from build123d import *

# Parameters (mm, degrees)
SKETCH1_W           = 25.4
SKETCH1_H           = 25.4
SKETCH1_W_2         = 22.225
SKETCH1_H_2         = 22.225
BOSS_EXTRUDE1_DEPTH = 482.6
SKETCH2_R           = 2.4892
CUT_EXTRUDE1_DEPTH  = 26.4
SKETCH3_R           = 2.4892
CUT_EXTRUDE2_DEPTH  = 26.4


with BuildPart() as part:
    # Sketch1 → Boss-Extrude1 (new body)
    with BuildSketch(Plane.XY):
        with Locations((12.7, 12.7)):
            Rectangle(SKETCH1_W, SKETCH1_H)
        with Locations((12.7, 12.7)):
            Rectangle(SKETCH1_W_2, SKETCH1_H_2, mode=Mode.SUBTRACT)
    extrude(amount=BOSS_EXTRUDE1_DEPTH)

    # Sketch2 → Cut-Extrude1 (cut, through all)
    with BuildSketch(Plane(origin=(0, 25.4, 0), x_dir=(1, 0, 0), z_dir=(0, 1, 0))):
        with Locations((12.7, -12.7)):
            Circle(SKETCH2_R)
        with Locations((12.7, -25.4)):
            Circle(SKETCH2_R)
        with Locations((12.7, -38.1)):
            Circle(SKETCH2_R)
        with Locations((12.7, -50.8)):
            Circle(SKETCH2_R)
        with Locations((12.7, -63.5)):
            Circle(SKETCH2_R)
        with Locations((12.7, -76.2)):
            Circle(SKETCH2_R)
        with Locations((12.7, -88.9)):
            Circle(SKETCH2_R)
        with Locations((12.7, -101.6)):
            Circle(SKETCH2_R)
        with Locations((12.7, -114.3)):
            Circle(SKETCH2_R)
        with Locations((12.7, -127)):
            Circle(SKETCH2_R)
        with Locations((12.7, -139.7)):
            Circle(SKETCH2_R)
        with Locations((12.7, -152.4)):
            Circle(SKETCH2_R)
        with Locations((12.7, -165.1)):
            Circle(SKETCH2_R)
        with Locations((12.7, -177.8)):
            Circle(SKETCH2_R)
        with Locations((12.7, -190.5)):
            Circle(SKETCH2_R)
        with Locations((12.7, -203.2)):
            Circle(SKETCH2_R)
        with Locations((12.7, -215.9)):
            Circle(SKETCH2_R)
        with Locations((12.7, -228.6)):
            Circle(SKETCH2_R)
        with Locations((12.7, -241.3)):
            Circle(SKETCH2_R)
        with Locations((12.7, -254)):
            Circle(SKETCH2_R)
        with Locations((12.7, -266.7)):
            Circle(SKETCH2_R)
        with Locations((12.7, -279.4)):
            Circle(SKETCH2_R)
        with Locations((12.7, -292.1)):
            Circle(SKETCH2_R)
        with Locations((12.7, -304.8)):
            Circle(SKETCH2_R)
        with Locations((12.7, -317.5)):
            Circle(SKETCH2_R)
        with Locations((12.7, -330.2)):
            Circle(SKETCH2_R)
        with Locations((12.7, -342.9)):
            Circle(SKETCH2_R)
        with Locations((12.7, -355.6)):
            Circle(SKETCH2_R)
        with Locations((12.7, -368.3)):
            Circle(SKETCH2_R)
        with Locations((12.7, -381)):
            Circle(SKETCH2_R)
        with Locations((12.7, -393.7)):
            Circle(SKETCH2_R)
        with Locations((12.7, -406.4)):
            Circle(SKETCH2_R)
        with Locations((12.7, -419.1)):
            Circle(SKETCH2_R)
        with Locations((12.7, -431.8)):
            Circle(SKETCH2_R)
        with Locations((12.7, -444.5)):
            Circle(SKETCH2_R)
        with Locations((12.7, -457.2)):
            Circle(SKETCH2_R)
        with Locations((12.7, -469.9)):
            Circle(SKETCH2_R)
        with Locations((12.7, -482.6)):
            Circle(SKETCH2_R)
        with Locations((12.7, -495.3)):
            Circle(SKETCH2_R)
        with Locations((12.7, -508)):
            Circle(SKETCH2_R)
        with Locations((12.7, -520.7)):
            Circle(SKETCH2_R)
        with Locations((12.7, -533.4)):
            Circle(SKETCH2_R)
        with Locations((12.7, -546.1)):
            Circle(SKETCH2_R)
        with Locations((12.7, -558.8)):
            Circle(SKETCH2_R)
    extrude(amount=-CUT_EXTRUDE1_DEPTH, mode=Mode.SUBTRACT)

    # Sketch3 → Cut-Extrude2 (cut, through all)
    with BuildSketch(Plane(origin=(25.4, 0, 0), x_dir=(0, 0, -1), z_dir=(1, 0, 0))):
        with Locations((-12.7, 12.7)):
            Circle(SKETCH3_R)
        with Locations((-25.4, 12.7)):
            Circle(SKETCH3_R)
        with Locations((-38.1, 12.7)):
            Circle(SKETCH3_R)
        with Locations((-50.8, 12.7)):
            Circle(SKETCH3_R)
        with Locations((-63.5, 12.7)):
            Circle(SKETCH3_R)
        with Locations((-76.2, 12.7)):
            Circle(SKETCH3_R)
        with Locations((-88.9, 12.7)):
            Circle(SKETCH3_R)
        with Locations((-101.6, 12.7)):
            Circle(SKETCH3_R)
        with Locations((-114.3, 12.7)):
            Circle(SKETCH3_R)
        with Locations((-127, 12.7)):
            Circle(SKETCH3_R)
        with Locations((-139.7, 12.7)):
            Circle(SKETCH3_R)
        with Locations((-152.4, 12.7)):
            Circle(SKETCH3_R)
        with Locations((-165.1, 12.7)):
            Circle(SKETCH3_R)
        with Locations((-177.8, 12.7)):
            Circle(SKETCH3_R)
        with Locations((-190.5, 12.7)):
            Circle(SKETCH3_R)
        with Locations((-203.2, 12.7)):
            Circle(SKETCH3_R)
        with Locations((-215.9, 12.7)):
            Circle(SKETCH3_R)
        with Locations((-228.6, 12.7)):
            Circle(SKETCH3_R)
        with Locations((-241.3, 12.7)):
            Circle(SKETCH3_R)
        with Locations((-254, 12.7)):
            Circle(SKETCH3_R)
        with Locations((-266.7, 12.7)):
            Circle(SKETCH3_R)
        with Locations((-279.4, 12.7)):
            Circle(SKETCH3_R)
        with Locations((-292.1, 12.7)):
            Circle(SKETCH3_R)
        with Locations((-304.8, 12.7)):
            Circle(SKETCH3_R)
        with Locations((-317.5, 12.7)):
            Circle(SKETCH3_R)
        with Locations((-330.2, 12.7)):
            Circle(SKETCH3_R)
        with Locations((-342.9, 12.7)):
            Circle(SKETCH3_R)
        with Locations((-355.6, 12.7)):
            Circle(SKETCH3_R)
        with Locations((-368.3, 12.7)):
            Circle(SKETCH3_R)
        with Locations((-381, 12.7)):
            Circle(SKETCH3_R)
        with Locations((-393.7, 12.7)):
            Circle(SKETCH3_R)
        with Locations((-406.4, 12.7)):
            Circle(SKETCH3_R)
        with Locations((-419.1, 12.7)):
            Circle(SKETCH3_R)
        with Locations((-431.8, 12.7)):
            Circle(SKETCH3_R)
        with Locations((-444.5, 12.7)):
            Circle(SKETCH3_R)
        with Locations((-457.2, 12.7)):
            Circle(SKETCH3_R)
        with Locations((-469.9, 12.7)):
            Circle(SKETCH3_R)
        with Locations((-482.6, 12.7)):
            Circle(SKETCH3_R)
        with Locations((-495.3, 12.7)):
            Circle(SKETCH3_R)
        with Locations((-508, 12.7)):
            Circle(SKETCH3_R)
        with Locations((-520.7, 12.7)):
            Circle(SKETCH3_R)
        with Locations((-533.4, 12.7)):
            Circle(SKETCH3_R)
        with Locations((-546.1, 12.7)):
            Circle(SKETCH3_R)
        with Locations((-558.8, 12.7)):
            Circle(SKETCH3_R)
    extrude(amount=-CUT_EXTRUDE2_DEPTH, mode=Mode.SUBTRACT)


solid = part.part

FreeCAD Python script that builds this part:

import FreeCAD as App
import Part
import Sketcher
from FreeCAD import Vector
Q = App.Units.Quantity

doc = App.newDocument("Part")
params = doc.addObject("Spreadsheet::Sheet", "Params")
for row, (alias, value) in enumerate([
    ("sketch1_width", "1 in"),
    ("sketch1_width2", "0.875 in"),
    ("pad1_length", "19 in"),
    ("sketch2_diameter", "0.196 in"),
    ("sketch3_diameter", "0.196 in"),
], start=1):
    params.set(f"A{row}", alias)
    params.set(f"B{row}", "=" + value)
    params.setAlias(f"B{row}", alias)

body = doc.addObject("PartDesign::Body", "Body")

# Sketch on XY plane
sketch1 = body.newObject("Sketcher::SketchObject", "Sketch")
sketch1.AttachmentSupport = (doc.getObject("XY_Plane"), [""])
sketch1.MapMode = "FlatFace"
sketch1.addGeometry([
    Part.LineSegment(Vector(0, 25.4, 0), Vector(0, 0, 0)),  # 0
    Part.LineSegment(Vector(0, 0, 0), Vector(25.4, 0, 0)),  # 1
    Part.LineSegment(Vector(25.4, 0, 0), Vector(25.4, 25.4, 0)),  # 2
    Part.LineSegment(Vector(25.4, 25.4, 0), Vector(0, 25.4, 0)),  # 3
    Part.LineSegment(Vector(23.8125, 1.5875, 0), Vector(1.5875, 1.5875, 0)),  # 4
    Part.LineSegment(Vector(1.5875, 1.5875, 0), Vector(1.5875, 23.8125, 0)),  # 5
    Part.LineSegment(Vector(1.5875, 23.8125, 0), Vector(23.8125, 23.8125, 0)),  # 6
    Part.LineSegment(Vector(23.8125, 23.8125, 0), Vector(23.8125, 1.5875, 0)),  # 7
], False)
sketch1.addConstraint([
    Sketcher.Constraint("Coincident", 0, 2, 1, 1),
    Sketcher.Constraint("Coincident", 1, 2, 2, 1),
    Sketcher.Constraint("Coincident", 2, 2, 3, 1),
    Sketcher.Constraint("Coincident", 3, 2, 0, 1),
    Sketcher.Constraint("Coincident", 4, 2, 5, 1),
    Sketcher.Constraint("Coincident", 5, 2, 6, 1),
    Sketcher.Constraint("Coincident", 6, 2, 7, 1),
    Sketcher.Constraint("Coincident", 7, 2, 4, 1),
    Sketcher.Constraint("Vertical", 0),
    Sketcher.Constraint("Horizontal", 1),
    Sketcher.Constraint("Vertical", 2),
    Sketcher.Constraint("Horizontal", 3),
    Sketcher.Constraint("Horizontal", 4),
    Sketcher.Constraint("Vertical", 5),
    Sketcher.Constraint("Horizontal", 6),
    Sketcher.Constraint("Vertical", 7),
    Sketcher.Constraint("Coincident", 0, 2, -1, 1),
    Sketcher.Constraint("Equal", 3, 0),
    Sketcher.Constraint("Equal", 6, 5),
    Sketcher.Constraint("DistanceX", 1, 1, 1, 2, Q("1 in")),
    Sketcher.Constraint("DistanceX", 4, 2, 4, 1, Q("0.875 in")),
    Sketcher.Constraint("DistanceX", -1, 1, 4, 2, Q("0.0625 in")),
    Sketcher.Constraint("DistanceY", -1, 1, 4, 2, Q("0.0625 in")),
])
sketch1.setExpression("Constraints[19]", "Params.sketch1_width")
sketch1.setExpression("Constraints[20]", "Params.sketch1_width2")
pad1 = body.newObject("PartDesign::Pad", "Pad")
pad1.Profile = sketch1
pad1.setExpression("Length", "Params.pad1_length")

# Sketch on XZ plane
sketch2 = body.newObject("Sketcher::SketchObject", "Sketch001")
sketch2.AttachmentSupport = (doc.getObject("XZ_Plane"), [""])
sketch2.MapMode = "FlatFace"
sketch2.AttachmentOffset = App.Placement(Vector(0, 0, -1 * 25.4), App.Rotation())
sketch2.addGeometry([
    Part.Circle(Vector(12.7, 12.7, 0), Vector(0, 0, 1), 2.4892),  # 0
    Part.Circle(Vector(12.7, 25.4, 0), Vector(0, 0, 1), 2.4892),  # 1
    Part.Circle(Vector(12.7, 38.1, 0), Vector(0, 0, 1), 2.4892),  # 2
    Part.Circle(Vector(12.7, 50.8, 0), Vector(0, 0, 1), 2.4892),  # 3
    Part.Circle(Vector(12.7, 63.5, 0), Vector(0, 0, 1), 2.4892),  # 4
    Part.Circle(Vector(12.7, 76.2, 0), Vector(0, 0, 1), 2.4892),  # 5
    Part.Circle(Vector(12.7, 88.9, 0), Vector(0, 0, 1), 2.4892),  # 6
    Part.Circle(Vector(12.7, 101.6, 0), Vector(0, 0, 1), 2.4892),  # 7
    Part.Circle(Vector(12.7, 114.3, 0), Vector(0, 0, 1), 2.4892),  # 8
    Part.Circle(Vector(12.7, 127, 0), Vector(0, 0, 1), 2.4892),  # 9
    Part.Circle(Vector(12.7, 139.7, 0), Vector(0, 0, 1), 2.4892),  # 10
    Part.Circle(Vector(12.7, 152.4, 0), Vector(0, 0, 1), 2.4892),  # 11
    Part.Circle(Vector(12.7, 165.1, 0), Vector(0, 0, 1), 2.4892),  # 12
    Part.Circle(Vector(12.7, 177.8, 0), Vector(0, 0, 1), 2.4892),  # 13
    Part.Circle(Vector(12.7, 190.5, 0), Vector(0, 0, 1), 2.4892),  # 14
    Part.Circle(Vector(12.7, 203.2, 0), Vector(0, 0, 1), 2.4892),  # 15
    Part.Circle(Vector(12.7, 215.9, 0), Vector(0, 0, 1), 2.4892),  # 16
    Part.Circle(Vector(12.7, 228.6, 0), Vector(0, 0, 1), 2.4892),  # 17
    Part.Circle(Vector(12.7, 241.3, 0), Vector(0, 0, 1), 2.4892),  # 18
    Part.Circle(Vector(12.7, 254, 0), Vector(0, 0, 1), 2.4892),  # 19
    Part.Circle(Vector(12.7, 266.7, 0), Vector(0, 0, 1), 2.4892),  # 20
    Part.Circle(Vector(12.7, 279.4, 0), Vector(0, 0, 1), 2.4892),  # 21
    Part.Circle(Vector(12.7, 292.1, 0), Vector(0, 0, 1), 2.4892),  # 22
    Part.Circle(Vector(12.7, 304.8, 0), Vector(0, 0, 1), 2.4892),  # 23
    Part.Circle(Vector(12.7, 317.5, 0), Vector(0, 0, 1), 2.4892),  # 24
    Part.Circle(Vector(12.7, 330.2, 0), Vector(0, 0, 1), 2.4892),  # 25
    Part.Circle(Vector(12.7, 342.9, 0), Vector(0, 0, 1), 2.4892),  # 26
    Part.Circle(Vector(12.7, 355.6, 0), Vector(0, 0, 1), 2.4892),  # 27
    Part.Circle(Vector(12.7, 368.3, 0), Vector(0, 0, 1), 2.4892),  # 28
    Part.Circle(Vector(12.7, 381, 0), Vector(0, 0, 1), 2.4892),  # 29
    Part.Circle(Vector(12.7, 393.7, 0), Vector(0, 0, 1), 2.4892),  # 30
    Part.Circle(Vector(12.7, 406.4, 0), Vector(0, 0, 1), 2.4892),  # 31
    Part.Circle(Vector(12.7, 419.1, 0), Vector(0, 0, 1), 2.4892),  # 32
    Part.Circle(Vector(12.7, 431.8, 0), Vector(0, 0, 1), 2.4892),  # 33
    Part.Circle(Vector(12.7, 444.5, 0), Vector(0, 0, 1), 2.4892),  # 34
    Part.Circle(Vector(12.7, 457.2, 0), Vector(0, 0, 1), 2.4892),  # 35
    Part.Circle(Vector(12.7, 469.9, 0), Vector(0, 0, 1), 2.4892),  # 36
    Part.Circle(Vector(12.7, 482.6, 0), Vector(0, 0, 1), 2.4892),  # 37
    Part.Circle(Vector(12.7, 495.3, 0), Vector(0, 0, 1), 2.4892),  # 38
    Part.Circle(Vector(12.7, 508, 0), Vector(0, 0, 1), 2.4892),  # 39
    Part.Circle(Vector(12.7, 520.7, 0), Vector(0, 0, 1), 2.4892),  # 40
    Part.Circle(Vector(12.7, 533.4, 0), Vector(0, 0, 1), 2.4892),  # 41
    Part.Circle(Vector(12.7, 546.1, 0), Vector(0, 0, 1), 2.4892),  # 42
    Part.Circle(Vector(12.7, 558.8, 0), Vector(0, 0, 1), 2.4892),  # 43
], False)
sketch2.addConstraint([
    Sketcher.Constraint("Equal", 0, 1),
    Sketcher.Constraint("Equal", 1, 2),
    Sketcher.Constraint("Equal", 2, 3),
    Sketcher.Constraint("Equal", 3, 4),
    Sketcher.Constraint("Equal", 4, 5),
    Sketcher.Constraint("Equal", 5, 6),
    Sketcher.Constraint("Equal", 6, 7),
    Sketcher.Constraint("Equal", 7, 8),
    Sketcher.Constraint("Equal", 8, 9),
    Sketcher.Constraint("Equal", 9, 10),
    Sketcher.Constraint("Equal", 10, 11),
    Sketcher.Constraint("Equal", 11, 12),
    Sketcher.Constraint("Equal", 12, 13),
    Sketcher.Constraint("Equal", 13, 14),
    Sketcher.Constraint("Equal", 14, 15),
    Sketcher.Constraint("Equal", 15, 16),
    Sketcher.Constraint("Equal", 16, 17),
    Sketcher.Constraint("Equal", 17, 18),
    Sketcher.Constraint("Equal", 18, 19),
    Sketcher.Constraint("Equal", 19, 20),
    Sketcher.Constraint("Equal", 20, 21),
    Sketcher.Constraint("Equal", 21, 22),
    Sketcher.Constraint("Equal", 22, 23),
    Sketcher.Constraint("Equal", 23, 24),
    Sketcher.Constraint("Equal", 24, 25),
    Sketcher.Constraint("Equal", 25, 26),
    Sketcher.Constraint("Equal", 26, 27),
    Sketcher.Constraint("Equal", 27, 28),
    Sketcher.Constraint("Equal", 28, 29),
    Sketcher.Constraint("Equal", 29, 30),
    Sketcher.Constraint("Equal", 30, 31),
    Sketcher.Constraint("Equal", 31, 32),
    Sketcher.Constraint("Equal", 32, 33),
    Sketcher.Constraint("Equal", 33, 34),
    Sketcher.Constraint("Equal", 34, 35),
    Sketcher.Constraint("Equal", 35, 36),
    Sketcher.Constraint("Equal", 36, 37),
    Sketcher.Constraint("Equal", 37, 38),
    Sketcher.Constraint("Equal", 38, 39),
    Sketcher.Constraint("Equal", 39, 40),
    Sketcher.Constraint("Equal", 40, 41),
    Sketcher.Constraint("Equal", 41, 42),
    Sketcher.Constraint("Equal", 42, 43),
    Sketcher.Constraint("Vertical", 0, 3, 1, 3),
    Sketcher.Constraint("Vertical", 1, 3, 2, 3),
    Sketcher.Constraint("Vertical", 2, 3, 3, 3),
    Sketcher.Constraint("Vertical", 3, 3, 4, 3),
    Sketcher.Constraint("Vertical", 4, 3, 5, 3),
    Sketcher.Constraint("Vertical", 5, 3, 6, 3),
    Sketcher.Constraint("Vertical", 6, 3, 7, 3),
    Sketcher.Constraint("Vertical", 7, 3, 8, 3),
    Sketcher.Constraint("Vertical", 8, 3, 9, 3),
    Sketcher.Constraint("Vertical", 9, 3, 10, 3),
    Sketcher.Constraint("Vertical", 10, 3, 11, 3),
    Sketcher.Constraint("Vertical", 11, 3, 12, 3),
    Sketcher.Constraint("Vertical", 12, 3, 13, 3),
    Sketcher.Constraint("Vertical", 13, 3, 14, 3),
    Sketcher.Constraint("Vertical", 14, 3, 15, 3),
    Sketcher.Constraint("Vertical", 15, 3, 16, 3),
    Sketcher.Constraint("Vertical", 16, 3, 17, 3),
    Sketcher.Constraint("Vertical", 17, 3, 18, 3),
    Sketcher.Constraint("Vertical", 18, 3, 19, 3),
    Sketcher.Constraint("Vertical", 19, 3, 20, 3),
    Sketcher.Constraint("Vertical", 20, 3, 21, 3),
    Sketcher.Constraint("Vertical", 21, 3, 22, 3),
    Sketcher.Constraint("Vertical", 22, 3, 23, 3),
    Sketcher.Constraint("Vertical", 23, 3, 24, 3),
    Sketcher.Constraint("Vertical", 24, 3, 25, 3),
    Sketcher.Constraint("Vertical", 25, 3, 26, 3),
    Sketcher.Constraint("Vertical", 26, 3, 27, 3),
    Sketcher.Constraint("Vertical", 27, 3, 28, 3),
    Sketcher.Constraint("Vertical", 28, 3, 29, 3),
    Sketcher.Constraint("Vertical", 29, 3, 30, 3),
    Sketcher.Constraint("Vertical", 30, 3, 31, 3),
    Sketcher.Constraint("Vertical", 31, 3, 32, 3),
    Sketcher.Constraint("Vertical", 32, 3, 33, 3),
    Sketcher.Constraint("Vertical", 33, 3, 34, 3),
    Sketcher.Constraint("Vertical", 34, 3, 35, 3),
    Sketcher.Constraint("Vertical", 35, 3, 36, 3),
    Sketcher.Constraint("Vertical", 36, 3, 37, 3),
    Sketcher.Constraint("Vertical", 37, 3, 38, 3),
    Sketcher.Constraint("Vertical", 38, 3, 39, 3),
    Sketcher.Constraint("Vertical", 39, 3, 40, 3),
    Sketcher.Constraint("Vertical", 40, 3, 41, 3),
    Sketcher.Constraint("Vertical", 41, 3, 42, 3),
    Sketcher.Constraint("Vertical", 42, 3, 43, 3),
    Sketcher.Constraint("Diameter", 0, Q("0.196 in")),
    Sketcher.Constraint("DistanceY", -1, 1, 1, 3, Q("1 in")),
    Sketcher.Constraint("DistanceY", -1, 1, 3, 3, Q("2 in")),
    Sketcher.Constraint("DistanceY", -1, 1, 5, 3, Q("3 in")),
    Sketcher.Constraint("DistanceY", -1, 1, 7, 3, Q("4 in")),
    Sketcher.Constraint("DistanceY", -1, 1, 9, 3, Q("5 in")),
    Sketcher.Constraint("DistanceY", -1, 1, 11, 3, Q("6 in")),
    Sketcher.Constraint("DistanceY", -1, 1, 13, 3, Q("7 in")),
    Sketcher.Constraint("DistanceY", -1, 1, 15, 3, Q("8 in")),
    Sketcher.Constraint("DistanceY", -1, 1, 17, 3, Q("9 in")),
    Sketcher.Constraint("DistanceY", -1, 1, 19, 3, Q("10 in")),
    Sketcher.Constraint("DistanceY", -1, 1, 21, 3, Q("11 in")),
    Sketcher.Constraint("DistanceY", -1, 1, 23, 3, Q("12 in")),
    Sketcher.Constraint("DistanceY", -1, 1, 25, 3, Q("13 in")),
    Sketcher.Constraint("DistanceY", -1, 1, 27, 3, Q("14 in")),
    Sketcher.Constraint("DistanceY", -1, 1, 29, 3, Q("15 in")),
    Sketcher.Constraint("DistanceY", -1, 1, 31, 3, Q("16 in")),
    Sketcher.Constraint("DistanceY", -1, 1, 33, 3, Q("17 in")),
    Sketcher.Constraint("DistanceY", -1, 1, 35, 3, Q("18 in")),
    Sketcher.Constraint("DistanceY", -1, 1, 37, 3, Q("19 in")),
    Sketcher.Constraint("DistanceY", -1, 1, 39, 3, Q("20 in")),
    Sketcher.Constraint("DistanceY", -1, 1, 41, 3, Q("21 in")),
    Sketcher.Constraint("DistanceY", -1, 1, 43, 3, Q("22 in")),
    Sketcher.Constraint("DistanceY", 0, 3, 2, 3, Q("1 in")),
    Sketcher.Constraint("DistanceY", 2, 3, 4, 3, Q("1 in")),
    Sketcher.Constraint("DistanceY", 4, 3, 6, 3, Q("1 in")),
    Sketcher.Constraint("DistanceY", 6, 3, 8, 3, Q("1 in")),
    Sketcher.Constraint("DistanceY", 8, 3, 10, 3, Q("1 in")),
    Sketcher.Constraint("DistanceY", 10, 3, 12, 3, Q("1 in")),
    Sketcher.Constraint("DistanceY", 12, 3, 14, 3, Q("1 in")),
    Sketcher.Constraint("DistanceY", 14, 3, 16, 3, Q("1 in")),
    Sketcher.Constraint("DistanceY", 16, 3, 18, 3, Q("1 in")),
    Sketcher.Constraint("DistanceY", 18, 3, 20, 3, Q("1 in")),
    Sketcher.Constraint("DistanceY", 20, 3, 22, 3, Q("1 in")),
    Sketcher.Constraint("DistanceY", 22, 3, 24, 3, Q("1 in")),
    Sketcher.Constraint("DistanceY", 24, 3, 26, 3, Q("1 in")),
    Sketcher.Constraint("DistanceY", 26, 3, 28, 3, Q("1 in")),
    Sketcher.Constraint("DistanceY", 28, 3, 30, 3, Q("1 in")),
    Sketcher.Constraint("DistanceY", 30, 3, 32, 3, Q("1 in")),
    Sketcher.Constraint("DistanceY", 32, 3, 34, 3, Q("1 in")),
    Sketcher.Constraint("DistanceY", 34, 3, 36, 3, Q("1 in")),
    Sketcher.Constraint("DistanceY", 36, 3, 38, 3, Q("1 in")),
    Sketcher.Constraint("DistanceY", 38, 3, 40, 3, Q("1 in")),
    Sketcher.Constraint("DistanceY", 40, 3, 42, 3, Q("1 in")),
    Sketcher.Constraint("DistanceX", -1, 1, 0, 3, Q("0.5 in")),
    Sketcher.Constraint("DistanceY", -1, 1, 0, 3, Q("0.5 in")),
])
sketch2.setExpression("Constraints[86]", "Params.sketch2_diameter")
pocket1 = body.newObject("PartDesign::Pocket", "Pocket")
pocket1.Profile = sketch2
pocket1.Type = "ThroughAll"
pocket1.Reversed = True

# Sketch on YZ plane
sketch3 = body.newObject("Sketcher::SketchObject", "Sketch002")
sketch3.AttachmentSupport = (doc.getObject("YZ_Plane"), [""])
sketch3.MapMode = "FlatFace"
sketch3.AttachmentOffset = App.Placement(Vector(0, 0, 1 * 25.4), App.Rotation())
sketch3.addGeometry([
    Part.Circle(Vector(12.7, 12.7, 0), Vector(0, 0, 1), 2.4892),  # 0
    Part.Circle(Vector(12.7, 25.4, 0), Vector(0, 0, 1), 2.4892),  # 1
    Part.Circle(Vector(12.7, 38.1, 0), Vector(0, 0, 1), 2.4892),  # 2
    Part.Circle(Vector(12.7, 50.8, 0), Vector(0, 0, 1), 2.4892),  # 3
    Part.Circle(Vector(12.7, 63.5, 0), Vector(0, 0, 1), 2.4892),  # 4
    Part.Circle(Vector(12.7, 76.2, 0), Vector(0, 0, 1), 2.4892),  # 5
    Part.Circle(Vector(12.7, 88.9, 0), Vector(0, 0, 1), 2.4892),  # 6
    Part.Circle(Vector(12.7, 101.6, 0), Vector(0, 0, 1), 2.4892),  # 7
    Part.Circle(Vector(12.7, 114.3, 0), Vector(0, 0, 1), 2.4892),  # 8
    Part.Circle(Vector(12.7, 127, 0), Vector(0, 0, 1), 2.4892),  # 9
    Part.Circle(Vector(12.7, 139.7, 0), Vector(0, 0, 1), 2.4892),  # 10
    Part.Circle(Vector(12.7, 152.4, 0), Vector(0, 0, 1), 2.4892),  # 11
    Part.Circle(Vector(12.7, 165.1, 0), Vector(0, 0, 1), 2.4892),  # 12
    Part.Circle(Vector(12.7, 177.8, 0), Vector(0, 0, 1), 2.4892),  # 13
    Part.Circle(Vector(12.7, 190.5, 0), Vector(0, 0, 1), 2.4892),  # 14
    Part.Circle(Vector(12.7, 203.2, 0), Vector(0, 0, 1), 2.4892),  # 15
    Part.Circle(Vector(12.7, 215.9, 0), Vector(0, 0, 1), 2.4892),  # 16
    Part.Circle(Vector(12.7, 228.6, 0), Vector(0, 0, 1), 2.4892),  # 17
    Part.Circle(Vector(12.7, 241.3, 0), Vector(0, 0, 1), 2.4892),  # 18
    Part.Circle(Vector(12.7, 254, 0), Vector(0, 0, 1), 2.4892),  # 19
    Part.Circle(Vector(12.7, 266.7, 0), Vector(0, 0, 1), 2.4892),  # 20
    Part.Circle(Vector(12.7, 279.4, 0), Vector(0, 0, 1), 2.4892),  # 21
    Part.Circle(Vector(12.7, 292.1, 0), Vector(0, 0, 1), 2.4892),  # 22
    Part.Circle(Vector(12.7, 304.8, 0), Vector(0, 0, 1), 2.4892),  # 23
    Part.Circle(Vector(12.7, 317.5, 0), Vector(0, 0, 1), 2.4892),  # 24
    Part.Circle(Vector(12.7, 330.2, 0), Vector(0, 0, 1), 2.4892),  # 25
    Part.Circle(Vector(12.7, 342.9, 0), Vector(0, 0, 1), 2.4892),  # 26
    Part.Circle(Vector(12.7, 355.6, 0), Vector(0, 0, 1), 2.4892),  # 27
    Part.Circle(Vector(12.7, 368.3, 0), Vector(0, 0, 1), 2.4892),  # 28
    Part.Circle(Vector(12.7, 381, 0), Vector(0, 0, 1), 2.4892),  # 29
    Part.Circle(Vector(12.7, 393.7, 0), Vector(0, 0, 1), 2.4892),  # 30
    Part.Circle(Vector(12.7, 406.4, 0), Vector(0, 0, 1), 2.4892),  # 31
    Part.Circle(Vector(12.7, 419.1, 0), Vector(0, 0, 1), 2.4892),  # 32
    Part.Circle(Vector(12.7, 431.8, 0), Vector(0, 0, 1), 2.4892),  # 33
    Part.Circle(Vector(12.7, 444.5, 0), Vector(0, 0, 1), 2.4892),  # 34
    Part.Circle(Vector(12.7, 457.2, 0), Vector(0, 0, 1), 2.4892),  # 35
    Part.Circle(Vector(12.7, 469.9, 0), Vector(0, 0, 1), 2.4892),  # 36
    Part.Circle(Vector(12.7, 482.6, 0), Vector(0, 0, 1), 2.4892),  # 37
    Part.Circle(Vector(12.7, 495.3, 0), Vector(0, 0, 1), 2.4892),  # 38
    Part.Circle(Vector(12.7, 508, 0), Vector(0, 0, 1), 2.4892),  # 39
    Part.Circle(Vector(12.7, 520.7, 0), Vector(0, 0, 1), 2.4892),  # 40
    Part.Circle(Vector(12.7, 533.4, 0), Vector(0, 0, 1), 2.4892),  # 41
    Part.Circle(Vector(12.7, 546.1, 0), Vector(0, 0, 1), 2.4892),  # 42
    Part.Circle(Vector(12.7, 558.8, 0), Vector(0, 0, 1), 2.4892),  # 43
], False)
sketch3.addConstraint([
    Sketcher.Constraint("Equal", 0, 1),
    Sketcher.Constraint("Equal", 1, 2),
    Sketcher.Constraint("Equal", 2, 3),
    Sketcher.Constraint("Equal", 3, 4),
    Sketcher.Constraint("Equal", 4, 5),
    Sketcher.Constraint("Equal", 5, 6),
    Sketcher.Constraint("Equal", 6, 7),
    Sketcher.Constraint("Equal", 7, 8),
    Sketcher.Constraint("Equal", 8, 9),
    Sketcher.Constraint("Equal", 9, 10),
    Sketcher.Constraint("Equal", 10, 11),
    Sketcher.Constraint("Equal", 11, 12),
    Sketcher.Constraint("Equal", 12, 13),
    Sketcher.Constraint("Equal", 13, 14),
    Sketcher.Constraint("Equal", 14, 15),
    Sketcher.Constraint("Equal", 15, 16),
    Sketcher.Constraint("Equal", 16, 17),
    Sketcher.Constraint("Equal", 17, 18),
    Sketcher.Constraint("Equal", 18, 19),
    Sketcher.Constraint("Equal", 19, 20),
    Sketcher.Constraint("Equal", 20, 21),
    Sketcher.Constraint("Equal", 21, 22),
    Sketcher.Constraint("Equal", 22, 23),
    Sketcher.Constraint("Equal", 23, 24),
    Sketcher.Constraint("Equal", 24, 25),
    Sketcher.Constraint("Equal", 25, 26),
    Sketcher.Constraint("Equal", 26, 27),
    Sketcher.Constraint("Equal", 27, 28),
    Sketcher.Constraint("Equal", 28, 29),
    Sketcher.Constraint("Equal", 29, 30),
    Sketcher.Constraint("Equal", 30, 31),
    Sketcher.Constraint("Equal", 31, 32),
    Sketcher.Constraint("Equal", 32, 33),
    Sketcher.Constraint("Equal", 33, 34),
    Sketcher.Constraint("Equal", 34, 35),
    Sketcher.Constraint("Equal", 35, 36),
    Sketcher.Constraint("Equal", 36, 37),
    Sketcher.Constraint("Equal", 37, 38),
    Sketcher.Constraint("Equal", 38, 39),
    Sketcher.Constraint("Equal", 39, 40),
    Sketcher.Constraint("Equal", 40, 41),
    Sketcher.Constraint("Equal", 41, 42),
    Sketcher.Constraint("Equal", 42, 43),
    Sketcher.Constraint("Vertical", 0, 3, 1, 3),
    Sketcher.Constraint("Vertical", 1, 3, 2, 3),
    Sketcher.Constraint("Vertical", 2, 3, 3, 3),
    Sketcher.Constraint("Vertical", 3, 3, 4, 3),
    Sketcher.Constraint("Vertical", 4, 3, 5, 3),
    Sketcher.Constraint("Vertical", 5, 3, 6, 3),
    Sketcher.Constraint("Vertical", 6, 3, 7, 3),
    Sketcher.Constraint("Vertical", 7, 3, 8, 3),
    Sketcher.Constraint("Vertical", 8, 3, 9, 3),
    Sketcher.Constraint("Vertical", 9, 3, 10, 3),
    Sketcher.Constraint("Vertical", 10, 3, 11, 3),
    Sketcher.Constraint("Vertical", 11, 3, 12, 3),
    Sketcher.Constraint("Vertical", 12, 3, 13, 3),
    Sketcher.Constraint("Vertical", 13, 3, 14, 3),
    Sketcher.Constraint("Vertical", 14, 3, 15, 3),
    Sketcher.Constraint("Vertical", 15, 3, 16, 3),
    Sketcher.Constraint("Vertical", 16, 3, 17, 3),
    Sketcher.Constraint("Vertical", 17, 3, 18, 3),
    Sketcher.Constraint("Vertical", 18, 3, 19, 3),
    Sketcher.Constraint("Vertical", 19, 3, 20, 3),
    Sketcher.Constraint("Vertical", 20, 3, 21, 3),
    Sketcher.Constraint("Vertical", 21, 3, 22, 3),
    Sketcher.Constraint("Vertical", 22, 3, 23, 3),
    Sketcher.Constraint("Vertical", 23, 3, 24, 3),
    Sketcher.Constraint("Vertical", 24, 3, 25, 3),
    Sketcher.Constraint("Vertical", 25, 3, 26, 3),
    Sketcher.Constraint("Vertical", 26, 3, 27, 3),
    Sketcher.Constraint("Vertical", 27, 3, 28, 3),
    Sketcher.Constraint("Vertical", 28, 3, 29, 3),
    Sketcher.Constraint("Vertical", 29, 3, 30, 3),
    Sketcher.Constraint("Vertical", 30, 3, 31, 3),
    Sketcher.Constraint("Vertical", 31, 3, 32, 3),
    Sketcher.Constraint("Vertical", 32, 3, 33, 3),
    Sketcher.Constraint("Vertical", 33, 3, 34, 3),
    Sketcher.Constraint("Vertical", 34, 3, 35, 3),
    Sketcher.Constraint("Vertical", 35, 3, 36, 3),
    Sketcher.Constraint("Vertical", 36, 3, 37, 3),
    Sketcher.Constraint("Vertical", 37, 3, 38, 3),
    Sketcher.Constraint("Vertical", 38, 3, 39, 3),
    Sketcher.Constraint("Vertical", 39, 3, 40, 3),
    Sketcher.Constraint("Vertical", 40, 3, 41, 3),
    Sketcher.Constraint("Vertical", 41, 3, 42, 3),
    Sketcher.Constraint("Vertical", 42, 3, 43, 3),
    Sketcher.Constraint("Diameter", 0, Q("0.196 in")),
    Sketcher.Constraint("DistanceY", -1, 1, 1, 3, Q("1 in")),
    Sketcher.Constraint("DistanceY", -1, 1, 3, 3, Q("2 in")),
    Sketcher.Constraint("DistanceY", -1, 1, 5, 3, Q("3 in")),
    Sketcher.Constraint("DistanceY", -1, 1, 7, 3, Q("4 in")),
    Sketcher.Constraint("DistanceY", -1, 1, 9, 3, Q("5 in")),
    Sketcher.Constraint("DistanceY", -1, 1, 11, 3, Q("6 in")),
    Sketcher.Constraint("DistanceY", -1, 1, 13, 3, Q("7 in")),
    Sketcher.Constraint("DistanceY", -1, 1, 15, 3, Q("8 in")),
    Sketcher.Constraint("DistanceY", -1, 1, 17, 3, Q("9 in")),
    Sketcher.Constraint("DistanceY", -1, 1, 19, 3, Q("10 in")),
    Sketcher.Constraint("DistanceY", -1, 1, 21, 3, Q("11 in")),
    Sketcher.Constraint("DistanceY", -1, 1, 23, 3, Q("12 in")),
    Sketcher.Constraint("DistanceY", -1, 1, 25, 3, Q("13 in")),
    Sketcher.Constraint("DistanceY", -1, 1, 27, 3, Q("14 in")),
    Sketcher.Constraint("DistanceY", -1, 1, 29, 3, Q("15 in")),
    Sketcher.Constraint("DistanceY", -1, 1, 31, 3, Q("16 in")),
    Sketcher.Constraint("DistanceY", -1, 1, 33, 3, Q("17 in")),
    Sketcher.Constraint("DistanceY", -1, 1, 35, 3, Q("18 in")),
    Sketcher.Constraint("DistanceY", -1, 1, 37, 3, Q("19 in")),
    Sketcher.Constraint("DistanceY", -1, 1, 39, 3, Q("20 in")),
    Sketcher.Constraint("DistanceY", -1, 1, 41, 3, Q("21 in")),
    Sketcher.Constraint("DistanceY", -1, 1, 43, 3, Q("22 in")),
    Sketcher.Constraint("DistanceY", 0, 3, 2, 3, Q("1 in")),
    Sketcher.Constraint("DistanceY", 2, 3, 4, 3, Q("1 in")),
    Sketcher.Constraint("DistanceY", 4, 3, 6, 3, Q("1 in")),
    Sketcher.Constraint("DistanceY", 6, 3, 8, 3, Q("1 in")),
    Sketcher.Constraint("DistanceY", 8, 3, 10, 3, Q("1 in")),
    Sketcher.Constraint("DistanceY", 10, 3, 12, 3, Q("1 in")),
    Sketcher.Constraint("DistanceY", 12, 3, 14, 3, Q("1 in")),
    Sketcher.Constraint("DistanceY", 14, 3, 16, 3, Q("1 in")),
    Sketcher.Constraint("DistanceY", 16, 3, 18, 3, Q("1 in")),
    Sketcher.Constraint("DistanceY", 18, 3, 20, 3, Q("1 in")),
    Sketcher.Constraint("DistanceY", 20, 3, 22, 3, Q("1 in")),
    Sketcher.Constraint("DistanceY", 22, 3, 24, 3, Q("1 in")),
    Sketcher.Constraint("DistanceY", 24, 3, 26, 3, Q("1 in")),
    Sketcher.Constraint("DistanceY", 26, 3, 28, 3, Q("1 in")),
    Sketcher.Constraint("DistanceY", 28, 3, 30, 3, Q("1 in")),
    Sketcher.Constraint("DistanceY", 30, 3, 32, 3, Q("1 in")),
    Sketcher.Constraint("DistanceY", 32, 3, 34, 3, Q("1 in")),
    Sketcher.Constraint("DistanceY", 34, 3, 36, 3, Q("1 in")),
    Sketcher.Constraint("DistanceY", 36, 3, 38, 3, Q("1 in")),
    Sketcher.Constraint("DistanceY", 38, 3, 40, 3, Q("1 in")),
    Sketcher.Constraint("DistanceY", 40, 3, 42, 3, Q("1 in")),
    Sketcher.Constraint("DistanceX", -1, 1, 0, 3, Q("0.5 in")),
    Sketcher.Constraint("DistanceY", -1, 1, 0, 3, Q("0.5 in")),
])
sketch3.setExpression("Constraints[86]", "Params.sketch3_diameter")
pocket2 = body.newObject("PartDesign::Pocket", "Pocket001")
pocket2.Profile = sketch3
pocket2.Type = "ThroughAll"

doc.recompute()
